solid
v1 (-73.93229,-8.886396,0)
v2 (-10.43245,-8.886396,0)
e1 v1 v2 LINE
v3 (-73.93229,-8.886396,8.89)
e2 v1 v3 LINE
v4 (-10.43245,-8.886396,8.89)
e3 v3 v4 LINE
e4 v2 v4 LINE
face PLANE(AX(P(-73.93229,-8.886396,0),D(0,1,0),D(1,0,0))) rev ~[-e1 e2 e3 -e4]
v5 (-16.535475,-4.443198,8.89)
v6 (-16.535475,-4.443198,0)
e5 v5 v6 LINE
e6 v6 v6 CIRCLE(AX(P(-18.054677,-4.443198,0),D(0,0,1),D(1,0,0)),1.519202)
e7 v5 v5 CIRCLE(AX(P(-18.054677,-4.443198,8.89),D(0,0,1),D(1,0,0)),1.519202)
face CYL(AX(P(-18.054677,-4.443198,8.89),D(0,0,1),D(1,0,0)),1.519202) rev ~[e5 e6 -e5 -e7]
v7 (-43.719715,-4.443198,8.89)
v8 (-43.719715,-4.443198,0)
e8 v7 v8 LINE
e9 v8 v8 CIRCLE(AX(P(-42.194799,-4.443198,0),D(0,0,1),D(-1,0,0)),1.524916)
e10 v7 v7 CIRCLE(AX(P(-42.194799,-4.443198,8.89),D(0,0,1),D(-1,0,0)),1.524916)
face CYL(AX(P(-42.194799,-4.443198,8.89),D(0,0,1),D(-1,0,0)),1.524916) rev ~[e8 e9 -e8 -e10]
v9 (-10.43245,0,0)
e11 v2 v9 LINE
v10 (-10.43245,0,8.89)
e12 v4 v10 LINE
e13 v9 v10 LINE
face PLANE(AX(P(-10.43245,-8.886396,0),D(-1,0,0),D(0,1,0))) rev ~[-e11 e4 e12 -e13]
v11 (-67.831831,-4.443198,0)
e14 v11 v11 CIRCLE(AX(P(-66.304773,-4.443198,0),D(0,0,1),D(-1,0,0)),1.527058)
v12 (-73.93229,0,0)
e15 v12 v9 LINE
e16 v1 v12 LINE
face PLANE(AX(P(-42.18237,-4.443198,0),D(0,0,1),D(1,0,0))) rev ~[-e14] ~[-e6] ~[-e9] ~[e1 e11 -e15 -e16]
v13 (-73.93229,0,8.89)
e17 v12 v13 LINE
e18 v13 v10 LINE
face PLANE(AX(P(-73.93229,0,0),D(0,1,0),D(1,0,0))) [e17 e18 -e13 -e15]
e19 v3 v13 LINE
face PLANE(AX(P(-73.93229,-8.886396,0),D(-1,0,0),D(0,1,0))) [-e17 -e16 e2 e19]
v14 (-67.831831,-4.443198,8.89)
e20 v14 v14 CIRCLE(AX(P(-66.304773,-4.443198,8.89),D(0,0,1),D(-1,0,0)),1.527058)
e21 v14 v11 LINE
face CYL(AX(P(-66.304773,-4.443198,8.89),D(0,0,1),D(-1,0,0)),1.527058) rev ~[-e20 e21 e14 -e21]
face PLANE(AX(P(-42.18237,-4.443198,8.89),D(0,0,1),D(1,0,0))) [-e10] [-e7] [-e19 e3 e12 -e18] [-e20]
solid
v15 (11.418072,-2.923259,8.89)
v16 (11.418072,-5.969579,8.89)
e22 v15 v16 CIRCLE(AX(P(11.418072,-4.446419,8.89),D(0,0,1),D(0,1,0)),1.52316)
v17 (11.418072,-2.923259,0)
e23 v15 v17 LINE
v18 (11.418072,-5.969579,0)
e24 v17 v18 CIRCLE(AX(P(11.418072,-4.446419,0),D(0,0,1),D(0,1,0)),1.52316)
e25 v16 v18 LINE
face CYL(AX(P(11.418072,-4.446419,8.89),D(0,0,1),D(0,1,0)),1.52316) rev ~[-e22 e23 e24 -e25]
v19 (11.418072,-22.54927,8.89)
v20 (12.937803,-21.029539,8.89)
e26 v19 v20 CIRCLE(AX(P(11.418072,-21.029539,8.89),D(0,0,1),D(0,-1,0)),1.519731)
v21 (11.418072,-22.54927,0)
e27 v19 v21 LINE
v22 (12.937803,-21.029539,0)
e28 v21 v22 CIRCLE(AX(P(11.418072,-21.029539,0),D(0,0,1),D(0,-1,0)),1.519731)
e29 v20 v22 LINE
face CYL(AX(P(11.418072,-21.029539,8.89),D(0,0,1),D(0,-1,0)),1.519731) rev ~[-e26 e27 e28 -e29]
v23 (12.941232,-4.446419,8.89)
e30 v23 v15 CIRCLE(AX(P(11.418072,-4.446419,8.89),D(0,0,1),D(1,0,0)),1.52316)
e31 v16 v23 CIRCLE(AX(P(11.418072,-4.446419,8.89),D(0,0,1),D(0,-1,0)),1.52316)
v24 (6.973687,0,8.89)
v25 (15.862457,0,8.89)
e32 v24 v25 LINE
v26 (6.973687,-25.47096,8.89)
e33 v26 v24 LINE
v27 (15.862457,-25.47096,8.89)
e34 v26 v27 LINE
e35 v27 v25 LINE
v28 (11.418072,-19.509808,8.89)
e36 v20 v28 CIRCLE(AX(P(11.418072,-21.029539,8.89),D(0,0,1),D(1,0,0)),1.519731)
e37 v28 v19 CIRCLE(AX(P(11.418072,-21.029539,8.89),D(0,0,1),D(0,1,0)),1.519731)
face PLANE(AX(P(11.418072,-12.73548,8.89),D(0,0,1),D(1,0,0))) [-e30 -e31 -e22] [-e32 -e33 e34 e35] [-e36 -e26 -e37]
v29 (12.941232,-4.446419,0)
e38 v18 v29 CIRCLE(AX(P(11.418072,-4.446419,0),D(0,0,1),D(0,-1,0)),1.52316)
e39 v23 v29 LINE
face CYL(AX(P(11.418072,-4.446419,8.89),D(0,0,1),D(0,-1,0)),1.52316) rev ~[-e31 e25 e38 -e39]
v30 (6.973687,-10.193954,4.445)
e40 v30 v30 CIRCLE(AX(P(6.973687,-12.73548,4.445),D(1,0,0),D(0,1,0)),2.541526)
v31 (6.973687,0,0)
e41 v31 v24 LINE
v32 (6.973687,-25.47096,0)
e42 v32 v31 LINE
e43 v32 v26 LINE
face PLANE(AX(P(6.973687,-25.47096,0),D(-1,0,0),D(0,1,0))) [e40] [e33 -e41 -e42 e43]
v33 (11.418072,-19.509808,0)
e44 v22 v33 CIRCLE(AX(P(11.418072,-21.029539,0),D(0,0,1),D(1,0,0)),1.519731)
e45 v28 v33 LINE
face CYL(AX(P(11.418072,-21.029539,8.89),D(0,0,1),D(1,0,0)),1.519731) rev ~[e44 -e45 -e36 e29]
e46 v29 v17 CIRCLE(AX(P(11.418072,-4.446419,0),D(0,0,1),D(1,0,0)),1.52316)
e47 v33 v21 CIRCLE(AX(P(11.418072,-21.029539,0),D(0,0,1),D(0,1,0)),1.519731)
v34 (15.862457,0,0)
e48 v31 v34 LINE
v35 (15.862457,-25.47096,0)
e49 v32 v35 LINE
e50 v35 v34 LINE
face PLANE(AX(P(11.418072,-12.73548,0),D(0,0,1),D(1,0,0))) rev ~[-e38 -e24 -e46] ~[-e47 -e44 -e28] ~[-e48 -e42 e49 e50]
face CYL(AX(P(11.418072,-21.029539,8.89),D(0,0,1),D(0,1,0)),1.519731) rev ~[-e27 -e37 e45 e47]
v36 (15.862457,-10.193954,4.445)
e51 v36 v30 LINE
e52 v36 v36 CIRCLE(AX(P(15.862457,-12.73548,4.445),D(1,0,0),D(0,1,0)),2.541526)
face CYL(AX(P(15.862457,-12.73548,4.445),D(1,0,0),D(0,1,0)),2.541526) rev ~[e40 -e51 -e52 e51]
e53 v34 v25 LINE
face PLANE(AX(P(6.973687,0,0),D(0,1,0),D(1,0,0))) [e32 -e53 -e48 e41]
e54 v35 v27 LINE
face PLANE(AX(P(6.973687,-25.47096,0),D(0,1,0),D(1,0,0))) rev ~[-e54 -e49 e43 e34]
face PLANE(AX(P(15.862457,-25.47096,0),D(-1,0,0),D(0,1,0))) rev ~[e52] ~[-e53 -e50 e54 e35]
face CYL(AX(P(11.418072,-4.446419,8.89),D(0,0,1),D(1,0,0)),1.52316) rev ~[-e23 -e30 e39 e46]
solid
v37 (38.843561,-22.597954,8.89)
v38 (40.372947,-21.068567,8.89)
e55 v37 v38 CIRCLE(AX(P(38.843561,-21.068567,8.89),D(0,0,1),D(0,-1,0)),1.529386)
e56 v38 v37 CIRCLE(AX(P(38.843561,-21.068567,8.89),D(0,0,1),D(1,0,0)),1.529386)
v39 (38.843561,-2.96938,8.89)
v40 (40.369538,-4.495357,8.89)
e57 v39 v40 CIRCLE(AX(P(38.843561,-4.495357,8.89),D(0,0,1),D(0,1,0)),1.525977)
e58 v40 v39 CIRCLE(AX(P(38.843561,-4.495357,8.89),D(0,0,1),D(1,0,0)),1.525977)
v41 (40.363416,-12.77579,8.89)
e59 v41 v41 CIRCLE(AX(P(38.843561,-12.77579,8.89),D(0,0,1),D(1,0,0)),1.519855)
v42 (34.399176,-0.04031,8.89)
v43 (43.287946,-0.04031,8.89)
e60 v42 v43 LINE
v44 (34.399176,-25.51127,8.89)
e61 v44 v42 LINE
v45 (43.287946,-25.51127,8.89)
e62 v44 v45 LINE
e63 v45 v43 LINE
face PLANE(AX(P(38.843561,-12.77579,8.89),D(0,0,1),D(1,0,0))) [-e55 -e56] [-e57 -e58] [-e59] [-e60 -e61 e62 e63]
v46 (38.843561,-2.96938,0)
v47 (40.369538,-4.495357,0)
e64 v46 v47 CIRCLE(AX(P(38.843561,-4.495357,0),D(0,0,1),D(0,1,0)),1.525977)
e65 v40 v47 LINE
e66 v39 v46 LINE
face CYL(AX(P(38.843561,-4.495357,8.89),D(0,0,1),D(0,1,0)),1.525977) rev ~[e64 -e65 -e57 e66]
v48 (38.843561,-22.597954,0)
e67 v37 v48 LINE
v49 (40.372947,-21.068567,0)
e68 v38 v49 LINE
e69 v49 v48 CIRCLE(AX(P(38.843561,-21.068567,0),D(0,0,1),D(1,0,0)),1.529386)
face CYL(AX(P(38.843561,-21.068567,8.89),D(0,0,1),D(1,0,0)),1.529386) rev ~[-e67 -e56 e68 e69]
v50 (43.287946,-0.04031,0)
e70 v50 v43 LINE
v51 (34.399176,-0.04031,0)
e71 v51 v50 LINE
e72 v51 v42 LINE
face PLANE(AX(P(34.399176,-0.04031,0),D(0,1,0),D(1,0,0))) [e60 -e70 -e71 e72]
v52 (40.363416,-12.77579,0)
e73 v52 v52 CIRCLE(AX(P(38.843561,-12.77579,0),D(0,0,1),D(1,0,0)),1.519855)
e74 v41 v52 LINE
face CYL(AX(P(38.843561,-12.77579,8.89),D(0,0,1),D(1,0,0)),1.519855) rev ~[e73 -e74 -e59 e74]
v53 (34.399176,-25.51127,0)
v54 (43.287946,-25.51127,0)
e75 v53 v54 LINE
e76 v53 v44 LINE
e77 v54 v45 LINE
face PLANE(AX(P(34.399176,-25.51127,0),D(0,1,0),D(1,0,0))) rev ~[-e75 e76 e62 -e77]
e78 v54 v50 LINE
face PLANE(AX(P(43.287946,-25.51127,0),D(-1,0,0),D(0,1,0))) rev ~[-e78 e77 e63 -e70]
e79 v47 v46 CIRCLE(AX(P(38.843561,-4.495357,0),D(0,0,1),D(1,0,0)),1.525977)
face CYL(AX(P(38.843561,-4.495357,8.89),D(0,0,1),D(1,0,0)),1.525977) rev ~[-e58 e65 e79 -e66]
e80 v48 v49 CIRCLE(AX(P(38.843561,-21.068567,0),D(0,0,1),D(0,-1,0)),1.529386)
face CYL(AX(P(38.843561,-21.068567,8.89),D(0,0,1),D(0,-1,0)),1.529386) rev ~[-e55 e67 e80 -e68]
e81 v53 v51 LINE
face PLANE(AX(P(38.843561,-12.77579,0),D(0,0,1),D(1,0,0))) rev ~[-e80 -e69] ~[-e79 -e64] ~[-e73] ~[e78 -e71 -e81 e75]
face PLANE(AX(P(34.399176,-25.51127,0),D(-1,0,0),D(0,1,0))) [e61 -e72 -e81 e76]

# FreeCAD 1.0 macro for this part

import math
import FreeCAD as App
import Part
import Sketcher
from FreeCAD import Vector
Q = App.Units.Quantity


def add_polygon(sketch, points):
    """Adds a closed chain of lines whose ends are joined by coincident constraints."""
    first, n = sketch.GeometryCount, len(points)
    for a, b in zip(points, points[1:] + points[:1]):
        sketch.addGeometry(Part.LineSegment(App.Vector(*a, 0), App.Vector(*b, 0)), False)
    for i in range(n):
        sketch.addConstraint(Sketcher.Constraint("Coincident", first + i, 2, first + (i + 1) % n, 1))

doc = App.newDocument("Part")
body = doc.addObject("PartDesign::Body", "Body")

sketch1 = body.newObject("Sketcher::SketchObject", "Sketch")
sketch1.AttachmentSupport = (doc.getObject("XY_Plane"), [""])
sketch1.MapMode = "FlatFace"
add_polygon(sketch1, [(-74, 0), (-74, -9), (-10, -9), (-10, 0)])
sketch1.addConstraint([
    Sketcher.Constraint("Vertical", 0),
    Sketcher.Constraint("Horizontal", 1),
    Sketcher.Constraint("Vertical", 2),
    Sketcher.Constraint("Horizontal", 3),
    Sketcher.Constraint("PointOnObject", 2, 2, -1),
    Sketcher.Constraint("DistanceX", 1, 1, 1, 2, 63.49984),
    Sketcher.Constraint("DistanceY", 0, 2, 0, 1, 8.886396),
    Sketcher.Constraint("DistanceX", 0, 2, -1, 1, 73.93229),
])
pad1 = body.newObject("PartDesign::Pad", "Pad")
pad1.Profile = sketch1
pad1.Length = Q("0.35 in")

sketch2 = body.newObject("Sketcher::SketchObject", "Sketch001")
sketch2.AttachmentSupport = (doc.getObject("XY_Plane"), [""])
sketch2.MapMode = "FlatFace"
sketch2.AttachmentOffset = App.Placement(Vector(0, 0, 0.35 * 25.4), App.Rotation())
sketch2.addGeometry([
    Part.Circle(Vector(-66.3, -4.4, 0), Vector(0, 0, 1), 1.5),
    Part.Circle(Vector(-18.1, -4.4, 0), Vector(0, 0, 1), 1.5),
], False)
sketch2.addConstraint([
    Sketcher.Constraint("Horizontal", 0, 3, 1, 3),
    Sketcher.Constraint("Diameter", 0, 3.054117),
    Sketcher.Constraint("Diameter", 1, 3.038405),
    Sketcher.Constraint("DistanceY", 0, 3, -1, 1, 4.443198),
    Sketcher.Constraint("DistanceX", 0, 3, -1, 1, 66.304773),
    Sketcher.Constraint("DistanceX", 1, 3, -1, 1, 18.054677),
])
pocket1 = body.newObject("PartDesign::Pocket", "Pocket")
pocket1.Profile = sketch2
pocket1.Length = Q("1 in")

sketch3 = body.newObject("Sketcher::SketchObject", "Sketch002")
sketch3.AttachmentSupport = (doc.getObject("XY_Plane"), [""])
sketch3.MapMode = "FlatFace"
sketch3.AttachmentOffset = App.Placement(Vector(0, 0, 0.35 * 25.4), App.Rotation())
sketch3.addGeometry(Part.Circle(Vector(-42.2, -4.4, 0), Vector(0, 0, 1), 1.5), False)
sketch3.addConstraint([
    Sketcher.Constraint("Diameter", 0, 3.049833),
    Sketcher.Constraint("DistanceX", 0, 3, -1, 1, 42.194799),
    Sketcher.Constraint("DistanceY", 0, 3, -1, 1, 4.443198),
])
pocket2 = body.newObject("PartDesign::Pocket", "Pocket001")
pocket2.Profile = sketch3
pocket2.Length = Q("1 in")
body2 = doc.addObject("PartDesign::Body", "Body001")

sketch4 = body2.newObject("Sketcher::SketchObject", "Sketch003")
sketch4.AttachmentSupport = (doc.getObject("XY_Plane001"), [""])
sketch4.MapMode = "FlatFace"
add_polygon(sketch4, [(7, 0), (7, -25), (16, -25), (16, 0)])
sketch4.addConstraint([
    Sketcher.Constraint("Vertical", 0),
    Sketcher.Constraint("Horizontal", 1),
    Sketcher.Constraint("Vertical", 2),
    Sketcher.Constraint("Horizontal", 3),
    Sketcher.Constraint("PointOnObject", 2, 2, -1),
    Sketcher.Constraint("DistanceX", 1, 1, 1, 2, 8.88877),
    Sketcher.Constraint("DistanceY", 0, 2, 0, 1, 25.47096),
    Sketcher.Constraint("DistanceX", -1, 1, 0, 2, 6.973687),
])
pad2 = body2.newObject("PartDesign::Pad", "Pad001")
pad2.Profile = sketch4
pad2.Length = Q("0.35 in")

sketch5 = body2.newObject("Sketcher::SketchObject", "Sketch004")
sketch5.AttachmentSupport = (doc.getObject("XY_Plane001"), [""])
sketch5.MapMode = "FlatFace"
sketch5.AttachmentOffset = App.Placement(Vector(0, 0, 0.35 * 25.4), App.Rotation())
sketch5.addGeometry([
    Part.ArcOfCircle(Part.Circle(Vector(11.4, -21, 0), Vector(0, 0, 1), 1.5), math.radians(90), math.radians(270)),
    Part.ArcOfCircle(Part.Circle(Vector(11.4, -21, 0), Vector(0, 0, 1), 1.5), math.radians(-90), math.radians(0)),
    Part.ArcOfCircle(Part.Circle(Vector(11.4, -21, 0), Vector(0, 0, 1), 1.5), math.radians(0), math.radians(90)),
    Part.ArcOfCircle(Part.Circle(Vector(11.4, -4.4, 0), Vector(0, 0, 1), 1.5), math.radians(90), math.radians(270)),
    Part.ArcOfCircle(Part.Circle(Vector(11.4, -4.4, 0), Vector(0, 0, 1), 1.5), math.radians(-90), math.radians(0)),
    Part.ArcOfCircle(Part.Circle(Vector(11.4, -4.4, 0), Vector(0, 0, 1), 1.5), math.radians(0), math.radians(90)),
], False)
sketch5.addConstraint([
    Sketcher.Constraint("Tangent", 0, 2, 1, 1),
    Sketcher.Constraint("Tangent", 1, 2, 2, 1),
    Sketcher.Constraint("Tangent", 2, 2, 0, 1),
    Sketcher.Constraint("Tangent", 3, 2, 4, 1),
    Sketcher.Constraint("Tangent", 4, 2, 5, 1),
    Sketcher.Constraint("Tangent", 5, 2, 3, 1),
    Sketcher.Constraint("Horizontal", 2, 3, 1, 2),
    Sketcher.Constraint("Horizontal", 5, 3, 4, 2),
    Sketcher.Constraint("Vertical", 2, 3, 3, 3),
    Sketcher.Constraint("Vertical", 5, 3, 0, 2),
    Sketcher.Constraint("Vertical", 0, 2, 2, 2),
    Sketcher.Constraint("Vertical", 2, 2, 3, 2),
    Sketcher.Constraint("Vertical", 3, 2, 5, 2),
    Sketcher.Constraint("Radius", 0, 1.519731),
    Sketcher.Constraint("Radius", 3, 1.52316),
    Sketcher.Constraint("DistanceX", -1, 1, 0, 3, 11.418072),
    Sketcher.Constraint("DistanceY", 0, 3, -1, 1, 21.029539),
    Sketcher.Constraint("DistanceY", 3, 3, -1, 1, 4.446419),
])
pocket3 = body2.newObject("PartDesign::Pocket", "Pocket002")
pocket3.Profile = sketch5
pocket3.Length = Q("0.5 in")

sketch6 = body2.newObject("Sketcher::SketchObject", "Sketch005")
sketch6.AttachmentSupport = (doc.getObject("YZ_Plane001"), [""])
sketch6.MapMode = "FlatFace"
sketch6.AttachmentOffset = App.Placement(Vector(0, 0, 15.862457), App.Rotation())
sketch6.addGeometry(Part.Circle(Vector(-12.7, 4.4, 0), Vector(0, 0, 1), 2.5), False)
sketch6.addConstraint([
    Sketcher.Constraint("Diameter", 0, 5.083052),
    Sketcher.Constraint("DistanceY", -1, 1, 0, 3, Q("0.175 in")),
    Sketcher.Constraint("DistanceX", 0, 3, -1, 1, 12.73548),
])
pocket4 = body2.newObject("PartDesign::Pocket", "Pocket003")
pocket4.Profile = sketch6
pocket4.Length = Q("1 in")
body3 = doc.addObject("PartDesign::Body", "Body002")

sketch7 = body3.newObject("Sketcher::SketchObject", "Sketch006")
sketch7.AttachmentSupport = (doc.getObject("XY_Plane002"), [""])
sketch7.MapMode = "FlatFace"
add_polygon(sketch7, [(34, 0), (34, -26), (43, -26), (43, 0)])
sketch7.addConstraint([
    Sketcher.Constraint("Vertical", 0),
    Sketcher.Constraint("Horizontal", 1),
    Sketcher.Constraint("Vertical", 2),
    Sketcher.Constraint("Horizontal", 3),
    Sketcher.Constraint("DistanceX", 1, 1, 1, 2, 8.88877),
    Sketcher.Constraint("DistanceY", 0, 2, 0, 1, 25.47096),
    Sketcher.Constraint("DistanceY", 0, 2, -1, 1, 25.51127),
    Sketcher.Constraint("DistanceX", -1, 1, 0, 2, 34.399176),
])
pad3 = body3.newObject("PartDesign::Pad", "Pad002")
pad3.Profile = sketch7
pad3.Length = Q("0.35 in")

sketch8 = body3.newObject("Sketcher::SketchObject", "Sketch007")
sketch8.AttachmentSupport = (doc.getObject("XY_Plane002"), [""])
sketch8.MapMode = "FlatFace"
sketch8.AttachmentOffset = App.Placement(Vector(0, 0, 0.35 * 25.4), App.Rotation())
sketch8.addGeometry([
    Part.ArcOfCircle(Part.Circle(Vector(38.8, -21.1, 0), Vector(0, 0, 1), 1.5), math.radians(0), math.radians(270)),
    Part.ArcOfCircle(Part.Circle(Vector(38.8, -21.1, 0), Vector(0, 0, 1), 1.5), math.radians(-90), math.radians(0)),
    Part.Circle(Vector(38.8, -12.8, 0), Vector(0, 0, 1), 1.5),
    Part.ArcOfCircle(Part.Circle(Vector(38.8, -4.5, 0), Vector(0, 0, 1), 1.5), math.radians(0), math.radians(90)),
    Part.ArcOfCircle(Part.Circle(Vector(38.8, -4.5, 0), Vector(0, 0, 1), 1.5), math.radians(90), math.radians(360)),
], False)
sketch8.addConstraint([
    Sketcher.Constraint("Tangent", 0, 1, 1, 2),
    Sketcher.Constraint("Coincident", 1, 1, 0, 2),
    Sketcher.Constraint("Tangent", 3, 1, 4, 2),
    Sketcher.Constraint("Coincident", 4, 1, 3, 2),
    Sketcher.Constraint("Horizontal", 1, 3, 0, 1),
    Sketcher.Constraint("Horizontal", 4, 3, 3, 1),
    Sketcher.Constraint("Vertical", 1, 3, 2, 3),
    Sketcher.Constraint("Vertical", 2, 3, 3, 3),
    Sketcher.Constraint("Vertical", 4, 3, 1, 1),
    Sketcher.Constraint("Vertical", 1, 1, 4, 1),
    Sketcher.Constraint("Diameter", 2, 3.039709),
    Sketcher.Constraint("Radius", 0, 1.529386),
    Sketcher.Constraint("Radius", 3, 1.525977),
    Sketcher.Constraint("DistanceX", -1, 1, 0, 3, 38.843561),
    Sketcher.Constraint("DistanceY", 2, 3, -1, 1, 12.77579),
    Sketcher.Constraint("DistanceY", 4, 1, -1, 1, 2.96938),
    Sketcher.Constraint("DistanceY", 0, 3, 3, 3, 16.57321),
])
pocket5 = body3.newObject("PartDesign::Pocket", "Pocket004")
pocket5.Profile = sketch8
pocket5.Length = Q("1 in")

doc.recompute()
